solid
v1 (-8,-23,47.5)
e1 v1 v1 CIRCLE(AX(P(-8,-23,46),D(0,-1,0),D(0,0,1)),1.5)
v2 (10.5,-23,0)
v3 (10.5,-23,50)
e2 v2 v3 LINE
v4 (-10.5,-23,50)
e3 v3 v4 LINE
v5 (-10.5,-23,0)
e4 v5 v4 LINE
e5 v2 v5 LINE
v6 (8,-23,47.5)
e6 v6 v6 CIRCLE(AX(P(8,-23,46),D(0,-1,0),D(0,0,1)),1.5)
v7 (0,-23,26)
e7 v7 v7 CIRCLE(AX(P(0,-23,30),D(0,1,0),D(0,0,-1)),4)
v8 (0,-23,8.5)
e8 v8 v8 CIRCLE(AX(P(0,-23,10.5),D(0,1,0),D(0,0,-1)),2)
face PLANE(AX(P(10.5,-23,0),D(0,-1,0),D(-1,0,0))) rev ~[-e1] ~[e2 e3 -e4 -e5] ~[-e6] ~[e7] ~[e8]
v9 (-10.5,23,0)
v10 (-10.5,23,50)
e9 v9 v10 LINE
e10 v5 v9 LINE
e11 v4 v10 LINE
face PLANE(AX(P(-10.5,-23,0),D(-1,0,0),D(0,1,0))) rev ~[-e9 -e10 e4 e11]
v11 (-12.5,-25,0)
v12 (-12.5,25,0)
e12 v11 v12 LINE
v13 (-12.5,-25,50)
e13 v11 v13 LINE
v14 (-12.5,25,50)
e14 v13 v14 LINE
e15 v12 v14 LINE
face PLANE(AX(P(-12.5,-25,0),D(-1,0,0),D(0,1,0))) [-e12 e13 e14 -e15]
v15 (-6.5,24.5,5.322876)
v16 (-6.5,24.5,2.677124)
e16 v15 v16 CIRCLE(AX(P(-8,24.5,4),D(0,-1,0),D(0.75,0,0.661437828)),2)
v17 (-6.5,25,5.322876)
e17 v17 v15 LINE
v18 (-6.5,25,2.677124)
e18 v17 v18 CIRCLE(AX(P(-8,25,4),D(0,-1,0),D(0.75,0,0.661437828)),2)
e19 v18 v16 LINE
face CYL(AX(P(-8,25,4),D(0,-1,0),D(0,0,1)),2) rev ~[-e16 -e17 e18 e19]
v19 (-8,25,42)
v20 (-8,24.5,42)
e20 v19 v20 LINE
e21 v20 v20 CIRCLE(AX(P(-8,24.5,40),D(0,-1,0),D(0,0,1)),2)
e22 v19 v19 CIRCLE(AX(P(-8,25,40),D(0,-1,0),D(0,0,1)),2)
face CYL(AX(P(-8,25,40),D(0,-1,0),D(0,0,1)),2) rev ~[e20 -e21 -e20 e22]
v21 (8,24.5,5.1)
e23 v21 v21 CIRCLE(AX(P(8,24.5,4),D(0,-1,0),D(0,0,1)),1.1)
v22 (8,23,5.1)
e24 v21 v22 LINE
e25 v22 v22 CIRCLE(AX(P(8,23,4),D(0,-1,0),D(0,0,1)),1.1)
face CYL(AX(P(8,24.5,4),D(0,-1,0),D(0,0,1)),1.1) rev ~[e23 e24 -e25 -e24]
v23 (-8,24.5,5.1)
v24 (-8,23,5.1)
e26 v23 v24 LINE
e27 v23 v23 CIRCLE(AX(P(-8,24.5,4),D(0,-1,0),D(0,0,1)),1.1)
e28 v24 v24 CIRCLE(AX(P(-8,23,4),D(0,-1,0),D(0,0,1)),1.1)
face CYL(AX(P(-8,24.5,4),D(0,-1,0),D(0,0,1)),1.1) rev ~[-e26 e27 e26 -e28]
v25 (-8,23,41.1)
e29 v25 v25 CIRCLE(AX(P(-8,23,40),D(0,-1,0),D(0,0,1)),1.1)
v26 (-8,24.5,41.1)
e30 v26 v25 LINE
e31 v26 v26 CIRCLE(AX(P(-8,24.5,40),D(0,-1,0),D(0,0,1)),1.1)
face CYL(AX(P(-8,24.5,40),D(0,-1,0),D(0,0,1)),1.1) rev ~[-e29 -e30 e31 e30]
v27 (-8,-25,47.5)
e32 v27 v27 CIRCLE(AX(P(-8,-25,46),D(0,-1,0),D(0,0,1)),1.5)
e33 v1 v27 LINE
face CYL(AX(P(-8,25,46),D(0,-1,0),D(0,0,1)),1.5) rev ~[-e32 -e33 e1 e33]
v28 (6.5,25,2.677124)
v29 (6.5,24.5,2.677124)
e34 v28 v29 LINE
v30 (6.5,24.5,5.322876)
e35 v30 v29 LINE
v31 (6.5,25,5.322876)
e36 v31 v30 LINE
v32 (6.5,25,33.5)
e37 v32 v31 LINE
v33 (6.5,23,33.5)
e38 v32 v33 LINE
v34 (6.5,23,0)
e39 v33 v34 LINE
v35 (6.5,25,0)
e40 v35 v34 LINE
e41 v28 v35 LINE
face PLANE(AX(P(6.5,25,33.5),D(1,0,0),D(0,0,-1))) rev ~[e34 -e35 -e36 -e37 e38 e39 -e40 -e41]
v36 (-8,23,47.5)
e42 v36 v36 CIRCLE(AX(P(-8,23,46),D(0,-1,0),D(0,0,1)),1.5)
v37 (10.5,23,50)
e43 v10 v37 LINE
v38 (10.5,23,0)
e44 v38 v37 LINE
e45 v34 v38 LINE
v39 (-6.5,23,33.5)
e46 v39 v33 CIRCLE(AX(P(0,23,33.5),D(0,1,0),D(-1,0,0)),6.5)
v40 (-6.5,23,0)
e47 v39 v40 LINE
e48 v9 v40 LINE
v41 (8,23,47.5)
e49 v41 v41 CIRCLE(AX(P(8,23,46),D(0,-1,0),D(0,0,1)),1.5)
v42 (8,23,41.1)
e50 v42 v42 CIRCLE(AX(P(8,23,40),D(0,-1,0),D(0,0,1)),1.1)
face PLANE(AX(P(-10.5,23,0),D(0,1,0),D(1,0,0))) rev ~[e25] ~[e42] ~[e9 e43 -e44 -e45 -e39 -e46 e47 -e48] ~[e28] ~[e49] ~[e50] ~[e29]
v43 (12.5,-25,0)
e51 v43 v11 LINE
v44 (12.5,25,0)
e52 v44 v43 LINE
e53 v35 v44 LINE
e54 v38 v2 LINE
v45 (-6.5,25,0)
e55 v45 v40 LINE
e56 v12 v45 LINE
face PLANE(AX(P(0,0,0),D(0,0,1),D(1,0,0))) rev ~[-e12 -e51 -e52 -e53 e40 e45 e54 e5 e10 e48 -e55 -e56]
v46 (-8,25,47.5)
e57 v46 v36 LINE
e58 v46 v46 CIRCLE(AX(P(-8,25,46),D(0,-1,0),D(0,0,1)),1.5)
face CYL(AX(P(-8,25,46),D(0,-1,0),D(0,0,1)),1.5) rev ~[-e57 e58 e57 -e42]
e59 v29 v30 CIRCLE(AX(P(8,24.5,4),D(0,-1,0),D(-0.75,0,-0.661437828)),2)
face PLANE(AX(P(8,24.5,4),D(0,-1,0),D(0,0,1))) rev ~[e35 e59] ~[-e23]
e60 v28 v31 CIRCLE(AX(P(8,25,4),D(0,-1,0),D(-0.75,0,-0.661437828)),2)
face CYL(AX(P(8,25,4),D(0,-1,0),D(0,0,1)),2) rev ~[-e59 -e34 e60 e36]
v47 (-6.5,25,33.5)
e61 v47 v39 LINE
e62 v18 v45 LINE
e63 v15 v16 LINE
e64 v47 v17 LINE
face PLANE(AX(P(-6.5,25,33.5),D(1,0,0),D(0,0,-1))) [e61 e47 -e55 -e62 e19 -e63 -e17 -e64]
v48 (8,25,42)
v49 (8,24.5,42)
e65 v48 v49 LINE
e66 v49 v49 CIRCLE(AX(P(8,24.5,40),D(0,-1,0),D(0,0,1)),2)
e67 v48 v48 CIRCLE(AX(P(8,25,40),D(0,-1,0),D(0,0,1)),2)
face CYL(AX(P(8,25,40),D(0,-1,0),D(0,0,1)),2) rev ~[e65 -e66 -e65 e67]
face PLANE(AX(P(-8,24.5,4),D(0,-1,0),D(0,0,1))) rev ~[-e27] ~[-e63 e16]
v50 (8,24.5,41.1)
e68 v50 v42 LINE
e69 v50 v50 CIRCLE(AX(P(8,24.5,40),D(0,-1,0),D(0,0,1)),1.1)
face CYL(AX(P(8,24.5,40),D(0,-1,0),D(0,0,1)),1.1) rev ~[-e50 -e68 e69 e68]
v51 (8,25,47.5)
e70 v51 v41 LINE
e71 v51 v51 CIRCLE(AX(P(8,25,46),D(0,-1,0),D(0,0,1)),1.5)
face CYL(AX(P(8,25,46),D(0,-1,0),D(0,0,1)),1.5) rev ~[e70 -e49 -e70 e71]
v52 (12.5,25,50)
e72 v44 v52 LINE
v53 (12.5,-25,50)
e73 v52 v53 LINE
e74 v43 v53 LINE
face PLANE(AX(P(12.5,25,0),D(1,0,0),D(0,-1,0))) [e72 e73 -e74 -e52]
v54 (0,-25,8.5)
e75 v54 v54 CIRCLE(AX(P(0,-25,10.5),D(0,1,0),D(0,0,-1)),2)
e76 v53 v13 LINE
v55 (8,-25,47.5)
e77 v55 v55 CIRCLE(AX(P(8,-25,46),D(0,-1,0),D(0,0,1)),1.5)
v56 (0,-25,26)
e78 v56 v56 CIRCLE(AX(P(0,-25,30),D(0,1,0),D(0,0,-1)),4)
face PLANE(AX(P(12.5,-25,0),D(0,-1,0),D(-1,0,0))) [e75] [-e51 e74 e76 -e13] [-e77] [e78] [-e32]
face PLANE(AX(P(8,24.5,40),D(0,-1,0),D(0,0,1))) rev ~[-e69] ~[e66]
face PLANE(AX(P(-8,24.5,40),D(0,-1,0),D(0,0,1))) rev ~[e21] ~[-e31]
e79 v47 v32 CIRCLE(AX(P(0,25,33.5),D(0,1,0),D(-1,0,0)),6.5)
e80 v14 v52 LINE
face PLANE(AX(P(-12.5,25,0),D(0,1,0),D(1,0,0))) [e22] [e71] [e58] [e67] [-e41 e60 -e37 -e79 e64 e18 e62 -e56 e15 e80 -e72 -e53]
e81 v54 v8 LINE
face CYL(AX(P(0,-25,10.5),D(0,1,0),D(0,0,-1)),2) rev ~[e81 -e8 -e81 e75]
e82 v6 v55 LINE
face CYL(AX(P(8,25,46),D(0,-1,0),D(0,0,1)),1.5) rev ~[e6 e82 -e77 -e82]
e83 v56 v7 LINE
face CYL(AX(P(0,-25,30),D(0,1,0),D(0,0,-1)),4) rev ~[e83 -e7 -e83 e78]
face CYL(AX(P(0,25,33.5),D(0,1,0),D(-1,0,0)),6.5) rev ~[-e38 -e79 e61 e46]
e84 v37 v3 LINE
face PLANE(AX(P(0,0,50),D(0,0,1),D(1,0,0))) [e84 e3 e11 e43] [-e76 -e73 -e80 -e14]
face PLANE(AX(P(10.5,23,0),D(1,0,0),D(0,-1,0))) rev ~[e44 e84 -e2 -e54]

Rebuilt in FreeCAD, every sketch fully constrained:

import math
import FreeCAD as App
import Part
import Sketcher


def add_polygon(sketch, points):
    """Adds a closed chain of lines whose ends are joined by coincident constraints."""
    first, n = sketch.GeometryCount, len(points)
    for a, b in zip(points, points[1:] + points[:1]):
        sketch.addGeometry(Part.LineSegment(App.Vector(*a, 0), App.Vector(*b, 0)), False)
    for i in range(n):
        sketch.addConstraint(Sketcher.Constraint("Coincident", first + i, 2, first + (i + 1) % n, 1))

doc = App.newDocument("Part")
body = doc.addObject("PartDesign::Body", "Body")

# Sketch on XY plane
sketch1 = body.newObject("Sketcher::SketchObject", "Sketch")
sketch1.AttachmentSupport = (doc.getObject("XY_Plane"), [""])
sketch1.MapMode = "FlatFace"
add_polygon(sketch1, [(12.5, 25), (-12.5, 25), (-12.5, -25), (12.5, -25)])  # lines 0-3
add_polygon(sketch1, [(-10.5, -23), (-10.5, 23), (10.5, 23), (10.5, -23)])  # lines 4-7
sketch1.addConstraint(Sketcher.Constraint("Horizontal", 0))
sketch1.addConstraint(Sketcher.Constraint("Vertical", 1))
sketch1.addConstraint(Sketcher.Constraint("Horizontal", 2))
sketch1.addConstraint(Sketcher.Constraint("Vertical", 3))
sketch1.addConstraint(Sketcher.Constraint("Vertical", 4))
sketch1.addConstraint(Sketcher.Constraint("Horizontal", 5))
sketch1.addConstraint(Sketcher.Constraint("Vertical", 6))
sketch1.addConstraint(Sketcher.Constraint("Horizontal", 7))
sketch1.addConstraint(Sketcher.Constraint("Symmetric", 0, 2, 2, 2, -1, 1))
sketch1.addConstraint(Sketcher.Constraint("Symmetric", 4, 2, 6, 2, -1, 1))
sketch1.addConstraint(Sketcher.Constraint("DistanceX", 0, 2, 0, 1, 25.0))
sketch1.addConstraint(Sketcher.Constraint("DistanceX", 5, 1, 5, 2, 21.0))
sketch1.addConstraint(Sketcher.Constraint("DistanceY", 1, 2, 1, 1, 50.0))
sketch1.addConstraint(Sketcher.Constraint("DistanceY", 4, 1, 4, 2, 46.0))
pad1 = body.newObject("PartDesign::Pad", "Pad")
pad1.Profile = sketch1
pad1.Length = 50

# Sketch on XZ plane
sketch2 = body.newObject("Sketcher::SketchObject", "Sketch001")
sketch2.AttachmentSupport = (doc.getObject("XZ_Plane"), [""])
sketch2.MapMode = "FlatFace"
sketch2.AttachmentOffset = App.Placement(App.Vector(0, 0, -25), App.Rotation())
sketch2.addGeometry(Part.LineSegment(App.Vector(6.5, 0, 0), App.Vector(-6.5, 0, 0)), False)
sketch2.addGeometry(Part.LineSegment(App.Vector(-6.5, 0, 0), App.Vector(-6.5, 33.5, 0)), False)
sketch2.addGeometry(Part.ArcOfCircle(Part.Circle(App.Vector(0, 33.5, 0), App.Vector(0, 0, 1), 6.5), math.radians(0), math.radians(180)), False)
sketch2.addGeometry(Part.LineSegment(App.Vector(6.5, 33.5, 0), App.Vector(6.5, 0, 0)), False)
sketch2.addConstraint(Sketcher.Constraint("Coincident", 0, 2, 1, 1))
sketch2.addConstraint(Sketcher.Constraint("Tangent", 1, 2, 2, 2))
sketch2.addConstraint(Sketcher.Constraint("Tangent", 2, 1, 3, 1))
sketch2.addConstraint(Sketcher.Constraint("Coincident", 3, 2, 0, 1))
sketch2.addConstraint(Sketcher.Constraint("Horizontal", 0))
sketch2.addConstraint(Sketcher.Constraint("Vertical", 1))
sketch2.addConstraint(Sketcher.Constraint("Vertical", 3))
sketch2.addConstraint(Sketcher.Constraint("Symmetric", 0, 2, 3, 2, -1, 1))
sketch2.addConstraint(Sketcher.Constraint("Radius", 2, 6.5))
sketch2.addConstraint(Sketcher.Constraint("DistanceY", 1, 1, 1, 2, 33.5))
pocket1 = body.newObject("PartDesign::Pocket", "Pocket")
pocket1.Profile = sketch2
pocket1.Length = 2
pocket1.Reversed = True

# Sketch on XZ plane
sketch3 = body.newObject("Sketcher::SketchObject", "Sketch002")
sketch3.AttachmentSupport = (doc.getObject("XZ_Plane"), [""])
sketch3.MapMode = "FlatFace"
sketch3.AttachmentOffset = App.Placement(App.Vector(0, 0, -25), App.Rotation())
sketch3.addGeometry(Part.Circle(App.Vector(-8, 4, 0), App.Vector(0, 0, 1), 1.1), False)
sketch3.addGeometry(Part.Circle(App.Vector(8, 4, 0), App.Vector(0, 0, 1), 1.1), False)
sketch3.addGeometry(Part.Circle(App.Vector(8, 40, 0), App.Vector(0, 0, 1), 1.1), False)
sketch3.addGeometry(Part.Circle(App.Vector(-8, 40, 0), App.Vector(0, 0, 1), 1.1), False)
sketch3.addConstraint(Sketcher.Constraint("Equal", 0, 1))
sketch3.addConstraint(Sketcher.Constraint("Equal", 1, 2))
sketch3.addConstraint(Sketcher.Constraint("Equal", 2, 3))
sketch3.addConstraint(Sketcher.Constraint("Symmetric", 0, 3, 1, 3, -2))
sketch3.addConstraint(Sketcher.Constraint("Symmetric", 2, 3, 3, 3, -2))
sketch3.addConstraint(Sketcher.Constraint("Vertical", 1, 3, 2, 3))
sketch3.addConstraint(Sketcher.Constraint("Diameter", 0, 2.2))
sketch3.addConstraint(Sketcher.Constraint("DistanceX", 0, 3, -1, 1, 8.0))
sketch3.addConstraint(Sketcher.Constraint("DistanceY", -1, 1, 0, 3, 4.0))
sketch3.addConstraint(Sketcher.Constraint("DistanceY", -1, 1, 2, 3, 40.0))
doc.recompute()
hole = body.newObject("PartDesign::Hole", "Hole")
hole.Profile = sketch3
hole.ThreadType = "None"
hole.Diameter = 2.2
hole.DepthType = "Dimension"
hole.Depth = 2
hole.DrillPoint = "Angled"
hole.DrillPointAngle = 118
hole.HoleCutType = "Counterbore"
hole.HoleCutDiameter = 4
hole.HoleCutDepth = 0.5
hole.Reversed = True

# Sketch on XZ plane
sketch4 = body.newObject("Sketcher::SketchObject", "Sketch003")
sketch4.AttachmentSupport = (doc.getObject("XZ_Plane"), [""])
sketch4.MapMode = "FlatFace"
sketch4.AttachmentOffset = App.Placement(App.Vector(0, 0, 25), App.Rotation())
sketch4.addGeometry(Part.Circle(App.Vector(0, 10.5, 0), App.Vector(0, 0, 1), 2), False)
sketch4.addConstraint(Sketcher.Constraint("PointOnObject", 0, 3, -2))
sketch4.addConstraint(Sketcher.Constraint("Diameter", 0, 4.0))
sketch4.addConstraint(Sketcher.Constraint("DistanceY", -1, 1, 0, 3, 10.5))
doc.recompute()
hole2 = body.newObject("PartDesign::Hole", "Hole001")
hole2.Profile = sketch4
hole2.ThreadType = "None"
hole2.Diameter = 4
hole2.DepthType = "ThroughAll"

# Sketch on XZ plane
sketch5 = body.newObject("Sketcher::SketchObject", "Sketch004")
sketch5.AttachmentSupport = (doc.getObject("XZ_Plane"), [""])
sketch5.MapMode = "FlatFace"
sketch5.AttachmentOffset = App.Placement(App.Vector(0, 0, -25), App.Rotation())
sketch5.addGeometry(Part.Circle(App.Vector(-8, 46, 0), App.Vector(0, 0, 1), 1.5), False)
sketch5.addGeometry(Part.Circle(App.Vector(8, 46, 0), App.Vector(0, 0, 1), 1.5), False)
sketch5.addConstraint(Sketcher.Constraint("Equal", 0, 1))
sketch5.addConstraint(Sketcher.Constraint("Symmetric", 0, 3, 1, 3, -2))
sketch5.addConstraint(Sketcher.Constraint("Diameter", 0, 3.0))
sketch5.addConstraint(Sketcher.Constraint("DistanceX", 0, 3, -1, 1, 8.0))
sketch5.addConstraint(Sketcher.Constraint("DistanceY", -1, 1, 0, 3, 46.0))
doc.recompute()
hole3 = body.newObject("PartDesign::Hole", "Hole002")
hole3.Profile = sketch5
hole3.ThreadType = "None"
hole3.Diameter = 3
hole3.DepthType = "ThroughAll"
hole3.Reversed = True

# Sketch on XZ plane
sketch6 = body.newObject("Sketcher::SketchObject", "Sketch005")
sketch6.AttachmentSupport = (doc.getObject("XZ_Plane"), [""])
sketch6.MapMode = "FlatFace"
sketch6.AttachmentOffset = App.Placement(App.Vector(0, 0, 25), App.Rotation())
sketch6.addGeometry(Part.Circle(App.Vector(0, 30, 0), App.Vector(0, 0, 1), 4), False)
sketch6.addConstraint(Sketcher.Constraint("PointOnObject", 0, 3, -2))
sketch6.addConstraint(Sketcher.Constraint("Diameter", 0, 8.0))
sketch6.addConstraint(Sketcher.Constraint("DistanceY", -1, 1, 0, 3, 30.0))
doc.recompute()
hole4 = body.newObject("PartDesign::Hole", "Hole003")
hole4.Profile = sketch6
hole4.ThreadType = "None"
hole4.Diameter = 8
hole4.DepthType = "ThroughAll"

doc.recompute()
